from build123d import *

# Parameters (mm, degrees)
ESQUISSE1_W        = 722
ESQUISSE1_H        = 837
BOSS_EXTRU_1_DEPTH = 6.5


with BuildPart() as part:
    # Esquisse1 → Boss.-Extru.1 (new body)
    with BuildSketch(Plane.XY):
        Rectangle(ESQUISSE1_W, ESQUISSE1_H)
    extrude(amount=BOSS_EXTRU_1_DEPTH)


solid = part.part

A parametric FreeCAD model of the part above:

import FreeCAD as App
import Part
import Sketcher
from FreeCAD import Vector

doc = App.newDocument("Part")
body = doc.addObject("PartDesign::Body", "Body")

# Sketch on XY plane
sketch1 = body.newObject("Sketcher::SketchObject", "Sketch")
sketch1.AttachmentSupport = (doc.getObject("XY_Plane"), [""])
sketch1.MapMode = "FlatFace"
sketch1.addGeometry([
    Part.LineSegment(Vector(-361, 418, 0), Vector(-361, -418, 0)),
    Part.LineSegment(Vector(-361, -418, 0), Vector(361, -418, 0)),
    Part.LineSegment(Vector(361, -418, 0), Vector(361, 418, 0)),
    Part.LineSegment(Vector(361, 418, 0), Vector(-361, 418, 0)),
], False)
sketch1.addConstraint([
    Sketcher.Constraint("Coincident", 0, 2, 1, 1),
    Sketcher.Constraint("Coincident", 1, 2, 2, 1),
    Sketcher.Constraint("Coincident", 2, 2, 3, 1),
    Sketcher.Constraint("Coincident", 3, 2, 0, 1),
    Sketcher.Constraint("Vertical", 0),
    Sketcher.Constraint("Horizontal", 1),
    Sketcher.Constraint("Vertical", 2),
    Sketcher.Constraint("Horizontal", 3),
    Sketcher.Constraint("Symmetric", 0, 2, 2, 2, -1, 1),
    Sketcher.Constraint("DistanceX", 1, 1, 1, 2, 722.0),
    Sketcher.Constraint("DistanceY", 0, 2, 0, 1, 837.0),
])
pad1 = body.newObject("PartDesign::Pad", "Pad")
pad1.Profile = sketch1
pad1.Length = 6.5

doc.recompute()
